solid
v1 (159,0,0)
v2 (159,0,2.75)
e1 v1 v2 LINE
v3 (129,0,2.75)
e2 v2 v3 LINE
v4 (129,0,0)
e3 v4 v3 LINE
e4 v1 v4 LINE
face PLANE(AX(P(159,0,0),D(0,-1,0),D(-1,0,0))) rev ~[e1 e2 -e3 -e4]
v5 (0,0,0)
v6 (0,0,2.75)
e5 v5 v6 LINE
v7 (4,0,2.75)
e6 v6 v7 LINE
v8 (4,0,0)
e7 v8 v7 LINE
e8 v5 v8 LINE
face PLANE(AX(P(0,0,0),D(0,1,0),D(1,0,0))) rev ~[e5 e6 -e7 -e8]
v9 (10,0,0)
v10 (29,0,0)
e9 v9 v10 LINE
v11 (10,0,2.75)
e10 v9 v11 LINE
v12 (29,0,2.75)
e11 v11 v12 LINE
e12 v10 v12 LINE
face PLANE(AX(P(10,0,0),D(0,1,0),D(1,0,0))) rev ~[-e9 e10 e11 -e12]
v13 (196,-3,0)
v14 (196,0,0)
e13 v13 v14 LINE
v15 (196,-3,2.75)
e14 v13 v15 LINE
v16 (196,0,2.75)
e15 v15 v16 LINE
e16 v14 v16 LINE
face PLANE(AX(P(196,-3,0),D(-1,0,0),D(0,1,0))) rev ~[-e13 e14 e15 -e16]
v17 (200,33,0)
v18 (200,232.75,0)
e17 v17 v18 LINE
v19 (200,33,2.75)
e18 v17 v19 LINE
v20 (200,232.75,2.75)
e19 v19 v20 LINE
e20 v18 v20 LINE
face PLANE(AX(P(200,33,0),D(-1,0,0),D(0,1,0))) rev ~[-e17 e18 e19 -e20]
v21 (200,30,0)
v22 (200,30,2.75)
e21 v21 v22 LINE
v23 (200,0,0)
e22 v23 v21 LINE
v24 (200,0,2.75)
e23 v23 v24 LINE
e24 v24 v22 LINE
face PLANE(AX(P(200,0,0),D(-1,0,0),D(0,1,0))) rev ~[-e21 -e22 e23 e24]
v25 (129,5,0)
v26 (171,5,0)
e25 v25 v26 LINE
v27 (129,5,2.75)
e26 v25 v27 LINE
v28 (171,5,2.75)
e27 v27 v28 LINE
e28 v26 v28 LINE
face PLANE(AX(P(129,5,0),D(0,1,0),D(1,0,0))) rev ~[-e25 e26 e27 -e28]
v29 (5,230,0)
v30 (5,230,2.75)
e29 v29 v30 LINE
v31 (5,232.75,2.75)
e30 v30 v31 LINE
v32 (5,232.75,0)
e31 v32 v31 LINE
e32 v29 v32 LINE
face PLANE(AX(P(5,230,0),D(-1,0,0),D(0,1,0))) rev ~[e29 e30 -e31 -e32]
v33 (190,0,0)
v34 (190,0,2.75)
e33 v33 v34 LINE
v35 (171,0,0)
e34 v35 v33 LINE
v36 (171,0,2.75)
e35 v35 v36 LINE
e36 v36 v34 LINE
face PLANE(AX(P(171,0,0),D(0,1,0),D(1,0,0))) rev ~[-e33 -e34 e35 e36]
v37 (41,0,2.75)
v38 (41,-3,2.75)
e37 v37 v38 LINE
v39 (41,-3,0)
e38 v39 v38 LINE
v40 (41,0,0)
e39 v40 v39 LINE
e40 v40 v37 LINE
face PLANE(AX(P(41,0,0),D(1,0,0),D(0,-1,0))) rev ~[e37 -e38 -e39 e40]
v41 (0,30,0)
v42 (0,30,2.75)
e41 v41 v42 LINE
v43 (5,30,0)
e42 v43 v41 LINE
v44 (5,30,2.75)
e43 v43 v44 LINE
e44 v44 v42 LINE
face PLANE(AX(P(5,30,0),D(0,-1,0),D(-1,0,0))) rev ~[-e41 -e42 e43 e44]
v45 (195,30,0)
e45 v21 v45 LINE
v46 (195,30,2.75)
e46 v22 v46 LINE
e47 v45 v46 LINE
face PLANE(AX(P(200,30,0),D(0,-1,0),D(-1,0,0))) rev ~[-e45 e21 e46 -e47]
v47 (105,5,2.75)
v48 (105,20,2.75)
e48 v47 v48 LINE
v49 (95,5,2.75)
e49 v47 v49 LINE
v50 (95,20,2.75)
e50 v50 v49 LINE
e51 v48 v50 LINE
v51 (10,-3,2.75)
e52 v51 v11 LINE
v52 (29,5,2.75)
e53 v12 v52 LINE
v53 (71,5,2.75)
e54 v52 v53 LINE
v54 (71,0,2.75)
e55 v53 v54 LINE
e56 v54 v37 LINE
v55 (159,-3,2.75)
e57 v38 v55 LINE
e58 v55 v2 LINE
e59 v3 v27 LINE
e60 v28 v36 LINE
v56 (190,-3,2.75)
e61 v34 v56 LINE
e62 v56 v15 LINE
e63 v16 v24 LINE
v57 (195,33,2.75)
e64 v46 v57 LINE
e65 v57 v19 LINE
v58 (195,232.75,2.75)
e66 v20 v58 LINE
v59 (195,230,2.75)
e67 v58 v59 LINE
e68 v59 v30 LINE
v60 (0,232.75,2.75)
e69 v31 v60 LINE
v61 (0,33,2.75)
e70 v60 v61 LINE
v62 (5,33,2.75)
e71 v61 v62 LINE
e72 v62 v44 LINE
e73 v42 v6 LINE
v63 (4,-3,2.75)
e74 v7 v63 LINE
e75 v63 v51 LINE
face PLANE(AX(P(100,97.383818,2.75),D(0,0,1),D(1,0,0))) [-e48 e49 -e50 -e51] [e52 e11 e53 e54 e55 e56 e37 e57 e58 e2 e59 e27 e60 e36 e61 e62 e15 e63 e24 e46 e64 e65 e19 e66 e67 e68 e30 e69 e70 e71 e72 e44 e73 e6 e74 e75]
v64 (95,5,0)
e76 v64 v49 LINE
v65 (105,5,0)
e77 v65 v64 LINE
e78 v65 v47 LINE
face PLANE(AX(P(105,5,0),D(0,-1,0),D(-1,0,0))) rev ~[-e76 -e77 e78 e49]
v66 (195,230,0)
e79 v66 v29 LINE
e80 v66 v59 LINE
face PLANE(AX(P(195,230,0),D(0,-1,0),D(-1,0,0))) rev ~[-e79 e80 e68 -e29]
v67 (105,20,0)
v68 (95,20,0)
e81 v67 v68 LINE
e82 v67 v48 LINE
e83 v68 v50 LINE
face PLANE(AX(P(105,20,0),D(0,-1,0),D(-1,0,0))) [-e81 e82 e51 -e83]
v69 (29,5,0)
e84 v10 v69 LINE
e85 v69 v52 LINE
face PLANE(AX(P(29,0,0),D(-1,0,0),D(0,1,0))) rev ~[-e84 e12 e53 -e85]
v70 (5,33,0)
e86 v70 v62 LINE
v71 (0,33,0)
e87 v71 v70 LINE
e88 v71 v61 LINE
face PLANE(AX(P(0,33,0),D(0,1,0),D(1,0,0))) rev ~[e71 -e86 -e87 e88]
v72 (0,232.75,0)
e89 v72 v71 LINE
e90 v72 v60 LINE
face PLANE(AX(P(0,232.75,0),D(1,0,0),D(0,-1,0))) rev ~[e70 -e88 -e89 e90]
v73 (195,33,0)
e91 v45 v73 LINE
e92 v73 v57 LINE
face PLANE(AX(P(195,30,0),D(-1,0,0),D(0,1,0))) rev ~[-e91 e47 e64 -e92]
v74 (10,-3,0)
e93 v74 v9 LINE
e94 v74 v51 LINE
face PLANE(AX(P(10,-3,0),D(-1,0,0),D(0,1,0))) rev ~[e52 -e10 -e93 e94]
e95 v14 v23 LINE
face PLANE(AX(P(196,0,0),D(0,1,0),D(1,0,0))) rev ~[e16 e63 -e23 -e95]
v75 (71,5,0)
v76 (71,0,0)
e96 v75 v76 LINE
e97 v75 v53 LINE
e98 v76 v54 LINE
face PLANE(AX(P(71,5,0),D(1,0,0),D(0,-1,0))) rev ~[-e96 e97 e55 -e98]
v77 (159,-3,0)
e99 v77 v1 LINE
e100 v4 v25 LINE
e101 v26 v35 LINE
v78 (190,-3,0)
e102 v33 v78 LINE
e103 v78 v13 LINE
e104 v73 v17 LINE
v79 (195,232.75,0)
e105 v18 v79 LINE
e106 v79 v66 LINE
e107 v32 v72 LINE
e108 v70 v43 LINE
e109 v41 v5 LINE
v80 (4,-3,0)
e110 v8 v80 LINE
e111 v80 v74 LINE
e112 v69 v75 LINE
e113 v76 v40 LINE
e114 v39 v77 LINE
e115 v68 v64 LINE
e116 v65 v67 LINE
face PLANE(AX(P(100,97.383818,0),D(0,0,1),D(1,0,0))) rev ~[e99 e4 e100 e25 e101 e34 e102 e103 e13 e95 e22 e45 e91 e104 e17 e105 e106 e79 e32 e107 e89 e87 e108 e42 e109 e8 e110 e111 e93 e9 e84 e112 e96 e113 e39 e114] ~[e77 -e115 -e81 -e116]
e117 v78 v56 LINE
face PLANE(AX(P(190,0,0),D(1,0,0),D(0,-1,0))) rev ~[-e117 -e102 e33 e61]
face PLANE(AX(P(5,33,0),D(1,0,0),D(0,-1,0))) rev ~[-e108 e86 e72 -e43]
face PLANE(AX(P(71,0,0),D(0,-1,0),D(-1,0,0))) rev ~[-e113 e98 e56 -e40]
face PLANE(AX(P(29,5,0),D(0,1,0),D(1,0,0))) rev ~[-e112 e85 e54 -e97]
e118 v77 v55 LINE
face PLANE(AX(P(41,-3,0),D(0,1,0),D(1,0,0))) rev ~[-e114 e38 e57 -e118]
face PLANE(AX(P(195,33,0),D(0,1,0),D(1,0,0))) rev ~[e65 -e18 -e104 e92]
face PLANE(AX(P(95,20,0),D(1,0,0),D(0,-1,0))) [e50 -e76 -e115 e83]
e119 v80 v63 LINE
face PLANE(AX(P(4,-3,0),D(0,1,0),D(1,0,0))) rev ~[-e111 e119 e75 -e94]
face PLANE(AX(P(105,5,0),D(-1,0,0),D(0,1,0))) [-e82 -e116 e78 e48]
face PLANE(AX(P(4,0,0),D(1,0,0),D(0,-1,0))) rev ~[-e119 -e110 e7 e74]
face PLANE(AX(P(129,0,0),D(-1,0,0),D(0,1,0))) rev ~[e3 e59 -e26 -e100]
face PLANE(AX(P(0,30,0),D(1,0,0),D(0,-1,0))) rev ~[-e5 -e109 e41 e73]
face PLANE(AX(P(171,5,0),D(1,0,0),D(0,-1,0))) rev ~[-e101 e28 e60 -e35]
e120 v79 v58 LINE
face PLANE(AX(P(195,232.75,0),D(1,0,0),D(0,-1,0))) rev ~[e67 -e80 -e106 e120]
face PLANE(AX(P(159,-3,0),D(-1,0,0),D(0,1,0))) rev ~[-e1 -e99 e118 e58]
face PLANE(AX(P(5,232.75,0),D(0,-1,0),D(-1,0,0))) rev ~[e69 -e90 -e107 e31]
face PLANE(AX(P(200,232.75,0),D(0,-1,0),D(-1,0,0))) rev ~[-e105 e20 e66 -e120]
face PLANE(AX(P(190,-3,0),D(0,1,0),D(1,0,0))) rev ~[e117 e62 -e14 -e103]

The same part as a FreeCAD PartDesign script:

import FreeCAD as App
import Part
import Sketcher

V = App.Vector
Q = App.Units.Quantity

doc = App.newDocument("Part")
body = doc.addObject("PartDesign::Body", "Body")

sketch1 = body.newObject("Sketcher::SketchObject", "Sketch")
sketch1.AttachmentSupport = (doc.getObject("XY_Plane"), [""])
sketch1.MapMode = "FlatFace"
sketch1.addGeometry([
    Part.LineSegment(V(200, 0, 0), V(200, 30, 0)),
    Part.LineSegment(V(200, 30, 0), V(195, 30, 0)),
    Part.LineSegment(V(195, 30, 0), V(195, 33, 0)),
    Part.LineSegment(V(195, 33, 0), V(200, 33, 0)),
    Part.LineSegment(V(200, 33, 0), V(200, 232.8, 0)),
    Part.LineSegment(V(200, 232.8, 0), V(195, 232.8, 0)),
    Part.LineSegment(V(195, 232.8, 0), V(195, 230, 0)),
    Part.LineSegment(V(195, 230, 0), V(5, 230, 0)),
    Part.LineSegment(V(5, 230, 0), V(5, 232.8, 0)),
    Part.LineSegment(V(5, 232.8, 0), V(0, 232.8, 0)),
    Part.LineSegment(V(0, 232.8, 0), V(0, 33, 0)),
    Part.LineSegment(V(0, 33, 0), V(5, 33, 0)),
    Part.LineSegment(V(5, 33, 0), V(5, 30, 0)),
    Part.LineSegment(V(5, 30, 0), V(0, 30, 0)),
    Part.LineSegment(V(0, 30, 0), V(0, 0, 0)),
    Part.LineSegment(V(0, 0, 0), V(4, 0, 0)),
    Part.LineSegment(V(4, 0, 0), V(4, -3, 0)),
    Part.LineSegment(V(4, -3, 0), V(10, -3, 0)),
    Part.LineSegment(V(10, -3, 0), V(10, 0, 0)),
    Part.LineSegment(V(10, 0, 0), V(29, 0, 0)),
    Part.LineSegment(V(29, 0, 0), V(29, 5, 0)),
    Part.LineSegment(V(29, 5, 0), V(71, 5, 0)),
    Part.LineSegment(V(71, 5, 0), V(71, 0, 0)),
    Part.LineSegment(V(71, 0, 0), V(41, 0, 0)),
    Part.LineSegment(V(41, 0, 0), V(41, -3, 0)),
    Part.LineSegment(V(41, -3, 0), V(159, -3, 0)),
    Part.LineSegment(V(159, -3, 0), V(159, 0, 0)),
    Part.LineSegment(V(159, 0, 0), V(129, 0, 0)),
    Part.LineSegment(V(129, 0, 0), V(129, 5, 0)),
    Part.LineSegment(V(129, 5, 0), V(171, 5, 0)),
    Part.LineSegment(V(171, 5, 0), V(171, 0, 0)),
    Part.LineSegment(V(171, 0, 0), V(190, 0, 0)),
    Part.LineSegment(V(190, 0, 0), V(190, -3, 0)),
    Part.LineSegment(V(190, -3, 0), V(196, -3, 0)),
    Part.LineSegment(V(196, -3, 0), V(196, 0, 0)),
    Part.LineSegment(V(196, 0, 0), V(200, 0, 0)),
    Part.LineSegment(V(105, 5, 0), V(95, 5, 0)),
    Part.LineSegment(V(95, 5, 0), V(95, 20, 0)),
    Part.LineSegment(V(95, 20, 0), V(105, 20, 0)),
    Part.LineSegment(V(105, 20, 0), V(105, 5, 0)),
], False)
sketch1.addConstraint([
    Sketcher.Constraint("Coincident", 0, 2, 1, 1),
    Sketcher.Constraint("Coincident", 1, 2, 2, 1),
    Sketcher.Constraint("Coincident", 2, 2, 3, 1),
    Sketcher.Constraint("Coincident", 3, 2, 4, 1),
    Sketcher.Constraint("Coincident", 4, 2, 5, 1),
    Sketcher.Constraint("Coincident", 5, 2, 6, 1),
    Sketcher.Constraint("Coincident", 6, 2, 7, 1),
    Sketcher.Constraint("Coincident", 7, 2, 8, 1),
    Sketcher.Constraint("Coincident", 8, 2, 9, 1),
    Sketcher.Constraint("Coincident", 9, 2, 10, 1),
    Sketcher.Constraint("Coincident", 10, 2, 11, 1),
    Sketcher.Constraint("Coincident", 11, 2, 12, 1),
    Sketcher.Constraint("Coincident", 12, 2, 13, 1),
    Sketcher.Constraint("Coincident", 13, 2, 14, 1),
    Sketcher.Constraint("Coincident", 14, 2, 15, 1),
    Sketcher.Constraint("Coincident", 15, 2, 16, 1),
    Sketcher.Constraint("Coincident", 16, 2, 17, 1),
    Sketcher.Constraint("Coincident", 17, 2, 18, 1),
    Sketcher.Constraint("Coincident", 18, 2, 19, 1),
    Sketcher.Constraint("Coincident", 19, 2, 20, 1),
    Sketcher.Constraint("Coincident", 20, 2, 21, 1),
    Sketcher.Constraint("Coincident", 21, 2, 22, 1),
    Sketcher.Constraint("Coincident", 22, 2, 23, 1),
    Sketcher.Constraint("Coincident", 23, 2, 24, 1),
    Sketcher.Constraint("Coincident", 24, 2, 25, 1),
    Sketcher.Constraint("Coincident", 25, 2, 26, 1),
    Sketcher.Constraint("Coincident", 26, 2, 27, 1),
    Sketcher.Constraint("Coincident", 27, 2, 28, 1),
    Sketcher.Constraint("Coincident", 28, 2, 29, 1),
    Sketcher.Constraint("Coincident", 29, 2, 30, 1),
    Sketcher.Constraint("Coincident", 30, 2, 31, 1),
    Sketcher.Constraint("Coincident", 31, 2, 32, 1),
    Sketcher.Constraint("Coincident", 32, 2, 33, 1),
    Sketcher.Constraint("Coincident", 33, 2, 34, 1),
    Sketcher.Constraint("Coincident", 34, 2, 35, 1),
    Sketcher.Constraint("Coincident", 35, 2, 0, 1),
    Sketcher.Constraint("Coincident", 36, 2, 37, 1),
    Sketcher.Constraint("Coincident", 37, 2, 38, 1),
    Sketcher.Constraint("Coincident", 38, 2, 39, 1),
    Sketcher.Constraint("Coincident", 39, 2, 36, 1),
    Sketcher.Constraint("Vertical", 0),
    Sketcher.Constraint("Horizontal", 1),
    Sketcher.Constraint("Vertical", 2),
    Sketcher.Constraint("Horizontal", 3),
    Sketcher.Constraint("Vertical", 4),
    Sketcher.Constraint("Horizontal", 5),
    Sketcher.Constraint("Vertical", 6),
    Sketcher.Constraint("Horizontal", 7),
    Sketcher.Constraint("Vertical", 8),
    Sketcher.Constraint("Horizontal", 9),
    Sketcher.Constraint("Vertical", 10),
    Sketcher.Constraint("Horizontal", 11),
    Sketcher.Constraint("Vertical", 12),
    Sketcher.Constraint("Horizontal", 13),
    Sketcher.Constraint("Vertical", 14),
    Sketcher.Constraint("Horizontal", 15),
    Sketcher.Constraint("Vertical", 16),
    Sketcher.Constraint("Horizontal", 17),
    Sketcher.Constraint("Vertical", 18),
    Sketcher.Constraint("Horizontal", 19),
    Sketcher.Constraint("Vertical", 20),
    Sketcher.Constraint("Horizontal", 21),
    Sketcher.Constraint("Vertical", 22),
    Sketcher.Constraint("Horizontal", 23),
    Sketcher.Constraint("Vertical", 24),
    Sketcher.Constraint("Horizontal", 25),
    Sketcher.Constraint("Vertical", 26),
    Sketcher.Constraint("Horizontal", 27),
    Sketcher.Constraint("Vertical", 28),
    Sketcher.Constraint("Horizontal", 29),
    Sketcher.Constraint("Vertical", 30),
    Sketcher.Constraint("Horizontal", 31),
    Sketcher.Constraint("Vertical", 32),
    Sketcher.Constraint("Horizontal", 33),
    Sketcher.Constraint("Vertical", 34),
    Sketcher.Constraint("Horizontal", 35),
    Sketcher.Constraint("Horizontal", 36),
    Sketcher.Constraint("Vertical", 37),
    Sketcher.Constraint("Horizontal", 38),
    Sketcher.Constraint("Vertical", 39),
    Sketcher.Constraint("Coincident", 14, 2, -1, 1),
    Sketcher.Constraint("PointOnObject", 9, 2, -2),
    Sketcher.Constraint("PointOnObject", 18, 2, -1),
    Sketcher.Constraint("PointOnObject", 22, 2, -1),
    Sketcher.Constraint("PointOnObject", 26, 2, -1),
    Sketcher.Constraint("PointOnObject", 30, 2, -1),
    Sketcher.Constraint("PointOnObject", 34, 2, -1),
    Sketcher.Constraint("Horizontal", 5, 2, 8, 2),
    Sketcher.Constraint("Horizontal", 3, 2, 10, 2),
    Sketcher.Constraint("Horizontal", 1, 2, 12, 2),
    Sketcher.Constraint("Horizontal", 17, 2, 24, 2),
    Sketcher.Constraint("Horizontal", 21, 2, 28, 2),
    Sketcher.Constraint("Horizontal", 25, 2, 32, 2),
    Sketcher.Constraint("Horizontal", 29, 2, 36, 2),
    Sketcher.Constraint("Vertical", 0, 2, 3, 2),
    Sketcher.Constraint("Vertical", 2, 2, 5, 2),
    Sketcher.Constraint("Vertical", 8, 2, 11, 2),
    Sketcher.Constraint("Equal", 5, 9),
    Sketcher.Constraint("Equal", 23, 27),
    Sketcher.Constraint("Equal", 21, 29),
    Sketcher.Constraint("Equal", 19, 31),
    Sketcher.Constraint("Equal", 17, 33),
    Sketcher.Constraint("Equal", 15, 35),
    Sketcher.Constraint("Equal", 27, 0),
    Sketcher.Constraint("Equal", 12, 16),
    Sketcher.Constraint("Equal", 13, 20),
    Sketcher.Constraint("DistanceX", 1, 2, 1, 1, Q("5 mm")),
    Sketcher.Constraint("DistanceX", 7, 2, 7, 1, Q("190 mm")),
    Sketcher.Constraint("DistanceX", 15, 1, 15, 2, Q("4 mm")),
    Sketcher.Constraint("DistanceX", 17, 1, 17, 2, Q("6 mm")),
    Sketcher.Constraint("DistanceX", 19, 1, 19, 2, Q("19 mm")),
    Sketcher.Constraint("DistanceX", 21, 1, 21, 2, Q("42 mm")),
    Sketcher.Constraint("DistanceX", 23, 2, 23, 1, Q("30 mm")),
    Sketcher.Constraint("DistanceX", 36, 2, 36, 1, Q("10 mm")),
    Sketcher.Constraint("DistanceY", 2, 1, 2, 2, Q("3 mm")),
    Sketcher.Constraint("DistanceY", 37, 1, 37, 2, Q("15 mm")),
    Sketcher.Constraint("DistanceY", -1, 1, 6, 2, Q("230 mm")),
    Sketcher.Constraint("DistanceX", -1, 1, 36, 2, Q("95 mm")),
    Sketcher.Constraint("DistanceY", 4, 1, 4, 2, Q("199.75 mm")),
])
pad1 = body.newObject("PartDesign::Pad", "Pad")
pad1.Profile = sketch1
pad1.Length = 2.75

doc.recompute()
